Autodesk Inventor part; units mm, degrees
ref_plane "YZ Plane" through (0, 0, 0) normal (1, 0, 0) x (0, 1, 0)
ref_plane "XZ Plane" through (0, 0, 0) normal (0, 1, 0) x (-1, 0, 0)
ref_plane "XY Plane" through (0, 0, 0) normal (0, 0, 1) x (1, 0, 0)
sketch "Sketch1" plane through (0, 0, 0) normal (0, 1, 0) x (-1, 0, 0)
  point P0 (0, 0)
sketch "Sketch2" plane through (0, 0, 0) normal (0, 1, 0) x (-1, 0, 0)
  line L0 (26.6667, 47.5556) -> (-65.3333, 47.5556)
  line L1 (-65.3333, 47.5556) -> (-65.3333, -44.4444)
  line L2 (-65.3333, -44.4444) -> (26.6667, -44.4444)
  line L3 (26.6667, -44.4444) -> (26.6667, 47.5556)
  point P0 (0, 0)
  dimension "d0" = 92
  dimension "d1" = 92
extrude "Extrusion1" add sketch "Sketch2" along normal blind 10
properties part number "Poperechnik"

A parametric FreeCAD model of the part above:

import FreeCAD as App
import Part
import Sketcher
from FreeCAD import Vector

doc = App.newDocument("Part")
params = doc.addObject("Spreadsheet::Sheet", "Params")
for row, (alias, value) in enumerate([
    ("sketch1_width", "92 mm"),
    ("pad1_length", "10 mm"),
], start=1):
    params.set(f"A{row}", alias)
    params.set(f"B{row}", "=" + value)
    params.setAlias(f"B{row}", alias)

body = doc.addObject("PartDesign::Body", "Body")

# Sketch on XZ plane
sketch1 = body.newObject("Sketcher::SketchObject", "Sketch")
sketch1.AttachmentSupport = (doc.getObject("XZ_Plane"), [""])
sketch1.MapMode = "FlatFace"
sketch1.addGeometry([
    Part.LineSegment(Vector(-27, -44, 0), Vector(-27, 48, 0)),
    Part.LineSegment(Vector(-27, 48, 0), Vector(65, 48, 0)),
    Part.LineSegment(Vector(65, 48, 0), Vector(65, -44, 0)),
    Part.LineSegment(Vector(65, -44, 0), Vector(-27, -44, 0)),
], False)
sketch1.addConstraint([
    Sketcher.Constraint("Coincident", 0, 2, 1, 1),
    Sketcher.Constraint("Coincident", 1, 2, 2, 1),
    Sketcher.Constraint("Coincident", 2, 2, 3, 1),
    Sketcher.Constraint("Coincident", 3, 2, 0, 1),
    Sketcher.Constraint("Vertical", 0),
    Sketcher.Constraint("Horizontal", 1),
    Sketcher.Constraint("Vertical", 2),
    Sketcher.Constraint("Horizontal", 3),
    Sketcher.Constraint("Equal", 3, 0),
    Sketcher.Constraint("DistanceX", 1, 1, 1, 2, 92.0),
    Sketcher.Constraint("DistanceX", 0, 2, -1, 1, 26.6667),
    Sketcher.Constraint("DistanceY", -1, 1, 0, 2, 47.5556),
])
sketch1.setExpression("Constraints[9]", "Params.sketch1_width")
pad1 = body.newObject("PartDesign::Pad", "Pad")
pad1.Profile = sketch1
pad1.setExpression("Length", "Params.pad1_length")
pad1.Reversed = True

doc.recompute()
